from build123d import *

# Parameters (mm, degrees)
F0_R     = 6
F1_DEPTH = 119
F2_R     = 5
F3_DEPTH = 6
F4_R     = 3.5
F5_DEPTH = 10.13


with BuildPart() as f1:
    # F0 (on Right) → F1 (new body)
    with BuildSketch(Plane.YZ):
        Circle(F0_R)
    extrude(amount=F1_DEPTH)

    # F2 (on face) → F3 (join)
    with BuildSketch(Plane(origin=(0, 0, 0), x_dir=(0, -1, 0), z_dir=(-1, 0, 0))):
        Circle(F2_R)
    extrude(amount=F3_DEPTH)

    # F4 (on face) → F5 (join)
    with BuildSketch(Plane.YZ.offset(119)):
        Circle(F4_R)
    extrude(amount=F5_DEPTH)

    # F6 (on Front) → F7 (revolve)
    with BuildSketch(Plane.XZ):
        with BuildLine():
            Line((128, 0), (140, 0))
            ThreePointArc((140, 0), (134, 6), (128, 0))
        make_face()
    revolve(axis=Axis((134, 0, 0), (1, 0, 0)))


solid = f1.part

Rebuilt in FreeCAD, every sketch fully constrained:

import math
import FreeCAD as App
import Part
import Sketcher
from FreeCAD import Vector
Q = App.Units.Quantity

doc = App.newDocument("Part")
body = doc.addObject("PartDesign::Body", "Body")

# Sketch on YZ plane
sketch1 = doc.addObject("Sketcher::SketchObject", "Sketch")
body.addObject(sketch1)
sketch1.AttachmentSupport = (doc.YZ_Plane, [""])
sketch1.MapMode = "FlatFace"
sketch1.addGeometry(Part.Circle(Vector(0, 0, 0), Vector(0, 0, 1), 6), False)
sketch1.addConstraint(Sketcher.Constraint("Coincident", 0, 3, -1, 1))
sketch1.addConstraint(Sketcher.Constraint("Diameter", 0, Q("12 mm")))
pad1 = doc.addObject("PartDesign::Pad", "Pad")
body.addObject(pad1)
pad1.Profile = sketch1
pad1.Length = 119

# Sketch on YZ plane
sketch2 = doc.addObject("Sketcher::SketchObject", "Sketch001")
body.addObject(sketch2)
sketch2.AttachmentSupport = (doc.YZ_Plane, [""])
sketch2.MapMode = "FlatFace"
sketch2.addGeometry(Part.Circle(Vector(0, 0, 0), Vector(0, 0, 1), 5), False)
sketch2.addConstraint(Sketcher.Constraint("Coincident", 0, 3, -1, 1))
sketch2.addConstraint(Sketcher.Constraint("Diameter", 0, Q("10 mm")))
pad2 = doc.addObject("PartDesign::Pad", "Pad001")
body.addObject(pad2)
pad2.Profile = sketch2
pad2.Length = 6
pad2.Reversed = True

# Sketch on YZ plane
sketch3 = doc.addObject("Sketcher::SketchObject", "Sketch002")
body.addObject(sketch3)
sketch3.AttachmentSupport = (doc.YZ_Plane, [""])
sketch3.MapMode = "FlatFace"
sketch3.AttachmentOffset = App.Placement(Vector(0, 0, 119), App.Rotation())
sketch3.addGeometry(Part.Circle(Vector(0, 0, 0), Vector(0, 0, 1), 3.5), False)
sketch3.addConstraint(Sketcher.Constraint("Coincident", 0, 3, -1, 1))
sketch3.addConstraint(Sketcher.Constraint("Diameter", 0, Q("7 mm")))
pad3 = doc.addObject("PartDesign::Pad", "Pad002")
body.addObject(pad3)
pad3.Profile = sketch3
pad3.Length = 10.13

# Sketch on XZ plane
sketch4 = doc.addObject("Sketcher::SketchObject", "Sketch003")
body.addObject(sketch4)
sketch4.AttachmentSupport = (doc.XZ_Plane, [""])
sketch4.MapMode = "FlatFace"
sketch4.addGeometry(Part.LineSegment(Vector(128, 0, 0), Vector(140, 0, 0)), False)
sketch4.addGeometry(Part.ArcOfCircle(Part.Circle(Vector(134, 0, 0), Vector(0, 0, 1), 6), math.radians(0), math.radians(180)), False)
sketch4.addConstraint(Sketcher.Constraint("Coincident", 0, 1, 1, 2))
sketch4.addConstraint(Sketcher.Constraint("Coincident", 1, 1, 0, 2))
sketch4.addConstraint(Sketcher.Constraint("Horizontal", 0))
sketch4.addConstraint(Sketcher.Constraint("PointOnObject", 1, 3, -1))
sketch4.addConstraint(Sketcher.Constraint("PointOnObject", 0, 1, -1))
sketch4.addConstraint(Sketcher.Constraint("Radius", 1, Q("6 mm")))
sketch4.addConstraint(Sketcher.Constraint("DistanceX", -1, 1, 1, 3, Q("134 mm")))
revolution = doc.addObject("PartDesign::Revolution", "Revolution")
body.addObject(revolution)
revolution.Profile = sketch4
revolution.ReferenceAxis = (sketch4, ["H_Axis"])
revolution.Angle = 360

doc.recompute()
